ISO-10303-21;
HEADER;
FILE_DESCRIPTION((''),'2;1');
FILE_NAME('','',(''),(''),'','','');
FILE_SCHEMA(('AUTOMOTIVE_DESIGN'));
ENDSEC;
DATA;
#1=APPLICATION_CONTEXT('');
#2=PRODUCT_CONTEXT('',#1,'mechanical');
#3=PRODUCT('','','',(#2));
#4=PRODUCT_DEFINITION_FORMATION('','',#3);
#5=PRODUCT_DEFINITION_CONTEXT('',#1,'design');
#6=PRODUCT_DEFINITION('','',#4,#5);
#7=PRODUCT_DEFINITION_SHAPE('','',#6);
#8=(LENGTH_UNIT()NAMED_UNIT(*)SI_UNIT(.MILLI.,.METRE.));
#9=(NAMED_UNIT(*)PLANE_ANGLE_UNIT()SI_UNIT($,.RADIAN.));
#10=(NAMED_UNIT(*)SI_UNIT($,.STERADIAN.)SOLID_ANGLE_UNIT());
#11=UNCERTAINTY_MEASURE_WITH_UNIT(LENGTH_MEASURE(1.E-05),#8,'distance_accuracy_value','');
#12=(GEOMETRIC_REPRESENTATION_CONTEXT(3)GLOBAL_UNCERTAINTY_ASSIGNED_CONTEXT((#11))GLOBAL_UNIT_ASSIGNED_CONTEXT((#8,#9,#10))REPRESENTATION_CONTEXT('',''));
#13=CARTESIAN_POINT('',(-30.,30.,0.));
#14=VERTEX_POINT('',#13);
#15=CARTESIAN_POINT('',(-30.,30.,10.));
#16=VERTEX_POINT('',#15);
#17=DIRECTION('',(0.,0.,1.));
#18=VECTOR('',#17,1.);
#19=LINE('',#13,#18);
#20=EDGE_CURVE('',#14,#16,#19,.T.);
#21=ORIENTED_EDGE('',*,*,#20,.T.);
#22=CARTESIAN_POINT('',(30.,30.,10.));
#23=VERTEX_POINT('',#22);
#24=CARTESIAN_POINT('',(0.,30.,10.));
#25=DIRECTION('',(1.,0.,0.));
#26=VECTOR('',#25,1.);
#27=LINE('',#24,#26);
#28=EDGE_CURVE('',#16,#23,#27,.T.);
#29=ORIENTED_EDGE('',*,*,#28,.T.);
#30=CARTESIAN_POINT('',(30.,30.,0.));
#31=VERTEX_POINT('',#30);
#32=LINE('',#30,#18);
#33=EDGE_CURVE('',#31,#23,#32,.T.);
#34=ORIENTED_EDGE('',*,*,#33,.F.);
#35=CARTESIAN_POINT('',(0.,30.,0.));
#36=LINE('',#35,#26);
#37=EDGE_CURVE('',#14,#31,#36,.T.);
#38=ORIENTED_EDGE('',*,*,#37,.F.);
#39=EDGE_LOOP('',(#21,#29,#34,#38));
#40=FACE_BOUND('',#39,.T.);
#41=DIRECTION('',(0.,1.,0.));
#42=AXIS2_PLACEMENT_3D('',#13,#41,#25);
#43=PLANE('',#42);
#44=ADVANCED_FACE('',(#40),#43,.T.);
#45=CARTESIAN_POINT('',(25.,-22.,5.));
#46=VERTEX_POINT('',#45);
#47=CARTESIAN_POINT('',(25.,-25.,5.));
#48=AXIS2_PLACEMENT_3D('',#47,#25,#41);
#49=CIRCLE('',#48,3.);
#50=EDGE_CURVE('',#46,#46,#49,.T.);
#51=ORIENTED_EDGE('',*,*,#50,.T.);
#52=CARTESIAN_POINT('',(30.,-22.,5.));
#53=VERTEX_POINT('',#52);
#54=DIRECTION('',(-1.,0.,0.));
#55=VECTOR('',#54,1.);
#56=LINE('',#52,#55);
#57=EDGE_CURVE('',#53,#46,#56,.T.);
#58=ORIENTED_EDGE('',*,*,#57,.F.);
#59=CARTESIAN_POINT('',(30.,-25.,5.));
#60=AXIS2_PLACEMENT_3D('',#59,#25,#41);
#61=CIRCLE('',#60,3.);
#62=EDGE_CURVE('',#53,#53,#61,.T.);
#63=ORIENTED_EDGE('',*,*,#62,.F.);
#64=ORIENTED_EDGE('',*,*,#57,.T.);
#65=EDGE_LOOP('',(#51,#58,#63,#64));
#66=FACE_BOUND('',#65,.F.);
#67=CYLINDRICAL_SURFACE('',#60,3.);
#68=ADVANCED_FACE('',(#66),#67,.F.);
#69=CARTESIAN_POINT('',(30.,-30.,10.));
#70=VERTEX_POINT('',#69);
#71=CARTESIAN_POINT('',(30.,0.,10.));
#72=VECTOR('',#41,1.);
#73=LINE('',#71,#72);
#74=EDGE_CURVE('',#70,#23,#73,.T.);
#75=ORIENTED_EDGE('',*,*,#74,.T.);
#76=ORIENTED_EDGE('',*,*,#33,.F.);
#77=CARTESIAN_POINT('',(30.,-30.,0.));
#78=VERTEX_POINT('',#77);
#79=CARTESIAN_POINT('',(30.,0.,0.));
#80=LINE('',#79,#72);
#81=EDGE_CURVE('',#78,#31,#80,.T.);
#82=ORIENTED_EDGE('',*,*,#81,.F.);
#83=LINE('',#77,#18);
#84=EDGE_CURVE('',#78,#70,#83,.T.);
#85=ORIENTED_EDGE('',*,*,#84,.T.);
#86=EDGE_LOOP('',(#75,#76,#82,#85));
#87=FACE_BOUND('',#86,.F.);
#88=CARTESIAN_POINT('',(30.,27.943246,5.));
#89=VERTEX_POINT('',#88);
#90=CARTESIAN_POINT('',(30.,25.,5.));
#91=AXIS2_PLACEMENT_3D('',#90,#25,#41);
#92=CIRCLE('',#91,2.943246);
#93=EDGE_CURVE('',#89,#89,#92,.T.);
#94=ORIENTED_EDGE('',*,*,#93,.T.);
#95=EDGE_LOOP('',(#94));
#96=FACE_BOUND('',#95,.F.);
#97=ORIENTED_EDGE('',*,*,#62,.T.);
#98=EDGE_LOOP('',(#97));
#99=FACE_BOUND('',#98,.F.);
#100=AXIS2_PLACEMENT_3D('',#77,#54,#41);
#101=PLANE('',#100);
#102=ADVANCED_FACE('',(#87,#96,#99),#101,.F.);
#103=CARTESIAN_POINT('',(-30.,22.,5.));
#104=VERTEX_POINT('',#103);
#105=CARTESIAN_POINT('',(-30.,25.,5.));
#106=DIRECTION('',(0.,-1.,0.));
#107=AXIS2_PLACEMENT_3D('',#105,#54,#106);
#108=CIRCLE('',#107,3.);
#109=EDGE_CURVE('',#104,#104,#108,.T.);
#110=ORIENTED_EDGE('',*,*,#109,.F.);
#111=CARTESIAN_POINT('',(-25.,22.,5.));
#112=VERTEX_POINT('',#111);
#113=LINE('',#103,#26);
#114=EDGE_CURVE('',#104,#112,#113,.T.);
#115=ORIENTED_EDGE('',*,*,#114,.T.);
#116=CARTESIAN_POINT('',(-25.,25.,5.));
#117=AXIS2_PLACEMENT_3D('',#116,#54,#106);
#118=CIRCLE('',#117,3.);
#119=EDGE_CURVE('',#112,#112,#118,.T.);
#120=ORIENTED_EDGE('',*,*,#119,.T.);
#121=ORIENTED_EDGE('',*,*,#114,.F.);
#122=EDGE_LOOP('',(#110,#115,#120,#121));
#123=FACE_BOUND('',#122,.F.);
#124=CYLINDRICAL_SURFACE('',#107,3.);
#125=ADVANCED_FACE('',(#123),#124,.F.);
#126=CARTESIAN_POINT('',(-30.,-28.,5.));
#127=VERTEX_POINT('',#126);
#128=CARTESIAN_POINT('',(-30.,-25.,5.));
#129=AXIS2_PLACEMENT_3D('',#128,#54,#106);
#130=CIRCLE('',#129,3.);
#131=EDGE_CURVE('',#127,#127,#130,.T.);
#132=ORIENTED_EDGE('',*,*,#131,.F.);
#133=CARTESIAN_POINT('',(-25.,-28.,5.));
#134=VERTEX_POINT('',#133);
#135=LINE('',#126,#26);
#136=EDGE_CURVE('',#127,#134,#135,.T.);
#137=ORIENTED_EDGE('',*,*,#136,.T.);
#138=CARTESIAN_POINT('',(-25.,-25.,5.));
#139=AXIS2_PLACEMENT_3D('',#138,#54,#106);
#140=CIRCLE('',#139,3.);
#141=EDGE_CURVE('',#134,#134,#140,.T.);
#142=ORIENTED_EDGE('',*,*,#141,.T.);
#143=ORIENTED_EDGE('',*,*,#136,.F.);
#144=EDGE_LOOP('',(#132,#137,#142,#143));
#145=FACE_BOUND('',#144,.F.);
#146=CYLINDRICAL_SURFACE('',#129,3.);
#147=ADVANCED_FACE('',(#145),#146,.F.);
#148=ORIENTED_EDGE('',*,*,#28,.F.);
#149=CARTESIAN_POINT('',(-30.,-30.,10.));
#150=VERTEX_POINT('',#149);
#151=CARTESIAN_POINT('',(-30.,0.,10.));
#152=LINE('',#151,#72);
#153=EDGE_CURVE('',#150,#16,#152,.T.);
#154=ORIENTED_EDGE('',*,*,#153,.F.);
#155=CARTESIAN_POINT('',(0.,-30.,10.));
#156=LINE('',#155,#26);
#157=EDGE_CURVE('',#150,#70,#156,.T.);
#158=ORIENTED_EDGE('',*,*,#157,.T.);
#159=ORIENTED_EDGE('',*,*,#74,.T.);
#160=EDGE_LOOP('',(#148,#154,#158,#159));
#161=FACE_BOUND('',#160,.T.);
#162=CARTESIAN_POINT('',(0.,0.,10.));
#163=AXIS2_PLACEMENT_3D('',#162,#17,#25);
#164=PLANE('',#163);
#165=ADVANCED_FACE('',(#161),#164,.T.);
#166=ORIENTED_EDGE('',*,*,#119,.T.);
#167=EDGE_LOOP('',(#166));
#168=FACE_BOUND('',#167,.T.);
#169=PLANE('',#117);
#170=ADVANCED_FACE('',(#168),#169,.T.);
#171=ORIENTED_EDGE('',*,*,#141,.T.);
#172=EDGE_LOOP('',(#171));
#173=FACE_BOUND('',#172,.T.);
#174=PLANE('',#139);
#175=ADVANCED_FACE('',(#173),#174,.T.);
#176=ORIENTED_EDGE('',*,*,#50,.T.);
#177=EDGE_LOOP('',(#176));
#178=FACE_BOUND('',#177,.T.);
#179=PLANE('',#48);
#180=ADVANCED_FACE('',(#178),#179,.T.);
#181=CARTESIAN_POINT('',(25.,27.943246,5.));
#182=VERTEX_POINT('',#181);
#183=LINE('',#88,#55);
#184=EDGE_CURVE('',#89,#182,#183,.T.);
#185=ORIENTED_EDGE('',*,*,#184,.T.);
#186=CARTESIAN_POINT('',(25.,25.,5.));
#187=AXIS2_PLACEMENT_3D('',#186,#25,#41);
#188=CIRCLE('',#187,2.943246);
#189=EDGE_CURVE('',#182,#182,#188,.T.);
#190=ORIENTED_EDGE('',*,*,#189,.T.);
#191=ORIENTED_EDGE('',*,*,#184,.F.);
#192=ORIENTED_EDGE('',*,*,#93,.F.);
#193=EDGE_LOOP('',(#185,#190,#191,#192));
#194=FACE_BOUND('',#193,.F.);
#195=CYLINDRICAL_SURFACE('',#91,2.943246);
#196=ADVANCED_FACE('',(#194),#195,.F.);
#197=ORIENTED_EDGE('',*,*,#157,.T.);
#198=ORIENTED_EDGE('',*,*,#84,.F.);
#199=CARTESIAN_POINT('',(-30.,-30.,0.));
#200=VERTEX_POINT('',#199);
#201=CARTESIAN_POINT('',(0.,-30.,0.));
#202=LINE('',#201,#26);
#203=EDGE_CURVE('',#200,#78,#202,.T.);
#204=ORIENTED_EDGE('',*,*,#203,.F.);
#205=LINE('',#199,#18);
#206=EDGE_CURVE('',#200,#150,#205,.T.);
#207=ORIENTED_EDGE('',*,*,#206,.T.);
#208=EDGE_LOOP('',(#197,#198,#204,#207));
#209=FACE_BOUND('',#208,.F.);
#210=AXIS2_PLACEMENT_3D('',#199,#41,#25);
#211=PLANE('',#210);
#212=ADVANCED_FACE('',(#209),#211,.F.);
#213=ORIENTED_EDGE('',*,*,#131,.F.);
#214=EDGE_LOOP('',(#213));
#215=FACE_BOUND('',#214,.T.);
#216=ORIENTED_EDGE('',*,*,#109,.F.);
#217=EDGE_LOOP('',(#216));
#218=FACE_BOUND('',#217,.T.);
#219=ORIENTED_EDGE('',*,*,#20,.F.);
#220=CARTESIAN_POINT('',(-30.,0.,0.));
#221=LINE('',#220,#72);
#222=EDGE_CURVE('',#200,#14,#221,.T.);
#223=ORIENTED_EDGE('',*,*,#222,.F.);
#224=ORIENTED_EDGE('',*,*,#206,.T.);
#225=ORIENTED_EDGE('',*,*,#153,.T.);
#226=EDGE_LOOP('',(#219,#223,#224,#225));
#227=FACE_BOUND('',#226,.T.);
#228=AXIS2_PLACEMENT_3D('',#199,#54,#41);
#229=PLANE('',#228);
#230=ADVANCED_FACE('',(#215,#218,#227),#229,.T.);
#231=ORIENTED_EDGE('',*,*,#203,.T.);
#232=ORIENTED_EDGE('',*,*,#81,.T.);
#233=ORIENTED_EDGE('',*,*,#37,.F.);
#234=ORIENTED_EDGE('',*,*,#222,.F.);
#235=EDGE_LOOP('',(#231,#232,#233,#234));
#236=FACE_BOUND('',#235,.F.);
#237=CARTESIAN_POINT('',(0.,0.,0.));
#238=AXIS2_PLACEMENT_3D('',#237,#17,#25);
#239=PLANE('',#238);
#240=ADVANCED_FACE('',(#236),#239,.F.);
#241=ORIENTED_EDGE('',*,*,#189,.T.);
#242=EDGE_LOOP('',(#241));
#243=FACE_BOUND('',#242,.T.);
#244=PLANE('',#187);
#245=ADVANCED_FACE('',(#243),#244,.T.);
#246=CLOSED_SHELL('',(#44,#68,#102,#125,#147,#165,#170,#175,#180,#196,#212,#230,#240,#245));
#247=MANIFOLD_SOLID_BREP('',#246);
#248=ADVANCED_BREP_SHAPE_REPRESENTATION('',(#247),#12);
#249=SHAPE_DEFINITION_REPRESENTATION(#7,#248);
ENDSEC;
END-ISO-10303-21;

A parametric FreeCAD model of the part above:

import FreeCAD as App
import Part
import Sketcher
from FreeCAD import Vector

doc = App.newDocument("Part")
body = doc.addObject("PartDesign::Body", "Body")

# Sketch on XY plane
sketch1 = doc.addObject("Sketcher::SketchObject", "Sketch")
body.addObject(sketch1)
sketch1.AttachmentSupport = (doc.XY_Plane, [""])
sketch1.MapMode = "FlatFace"
sketch1.addGeometry([
    Part.LineSegment(Vector(-30, 30, 0), Vector(-30, -30, 0)),
    Part.LineSegment(Vector(-30, -30, 0), Vector(30, -30, 0)),
    Part.LineSegment(Vector(30, -30, 0), Vector(30, 30, 0)),
    Part.LineSegment(Vector(30, 30, 0), Vector(-30, 30, 0)),
], False)
sketch1.addConstraint([
    Sketcher.Constraint("Coincident", 0, 2, 1, 1),
    Sketcher.Constraint("Coincident", 1, 2, 2, 1),
    Sketcher.Constraint("Coincident", 2, 2, 3, 1),
    Sketcher.Constraint("Coincident", 3, 2, 0, 1),
    Sketcher.Constraint("Vertical", 0),
    Sketcher.Constraint("Horizontal", 1),
    Sketcher.Constraint("Vertical", 2),
    Sketcher.Constraint("Horizontal", 3),
    Sketcher.Constraint("Symmetric", 0, 2, 2, 2, -1, 1),
    Sketcher.Constraint("Equal", 3, 0),
    Sketcher.Constraint("DistanceX", 1, 1, 1, 2, 60.0),
])
pad1 = doc.addObject("PartDesign::Pad", "Pad")
body.addObject(pad1)
pad1.Profile = sketch1
pad1.Length = 10

# Sketch on YZ plane
sketch2 = doc.addObject("Sketcher::SketchObject", "Sketch001")
body.addObject(sketch2)
sketch2.AttachmentSupport = (doc.YZ_Plane, [""])
sketch2.MapMode = "FlatFace"
sketch2.AttachmentOffset = App.Placement(Vector(0, 0, 30), App.Rotation())
sketch2.addGeometry([
    Part.Circle(Vector(-25, 5, 0), Vector(0, 0, 1), 3),
    Part.Circle(Vector(25, 5, 0), Vector(0, 0, 1), 2.943246),
], False)
sketch2.addConstraint([
    Sketcher.Constraint("Symmetric", 0, 3, 1, 3, -2),
    Sketcher.Constraint("Diameter", 0, 6.0),
    Sketcher.Constraint("DistanceX", 0, 3, -1, 1, 25.0),
    Sketcher.Constraint("DistanceY", -1, 1, 0, 3, 5.0),
    Sketcher.Constraint("Diameter", 1, 5.886492),
])
pocket1 = doc.addObject("PartDesign::Pocket", "Pocket")
body.addObject(pocket1)
pocket1.Profile = sketch2
pocket1.Length = 5

# Sketch on YZ plane
sketch3 = doc.addObject("Sketcher::SketchObject", "Sketch002")
body.addObject(sketch3)
sketch3.AttachmentSupport = (doc.YZ_Plane, [""])
sketch3.MapMode = "FlatFace"
sketch3.AttachmentOffset = App.Placement(Vector(0, 0, -30), App.Rotation())
sketch3.addGeometry([
    Part.Circle(Vector(25, 5, 0), Vector(0, 0, 1), 3),
    Part.Circle(Vector(-25, 5, 0), Vector(0, 0, 1), 3),
], False)
sketch3.addConstraint([
    Sketcher.Constraint("Equal", 0, 1),
    Sketcher.Constraint("Symmetric", 0, 3, 1, 3, -2),
    Sketcher.Constraint("Diameter", 0, 6.0),
    Sketcher.Constraint("DistanceX", -1, 1, 0, 3, 25.0),
    Sketcher.Constraint("DistanceY", -1, 1, 0, 3, 5.0),
])
pocket2 = doc.addObject("PartDesign::Pocket", "Pocket001")
body.addObject(pocket2)
pocket2.Profile = sketch3
pocket2.Length = 5
pocket2.Reversed = True

doc.recompute()
